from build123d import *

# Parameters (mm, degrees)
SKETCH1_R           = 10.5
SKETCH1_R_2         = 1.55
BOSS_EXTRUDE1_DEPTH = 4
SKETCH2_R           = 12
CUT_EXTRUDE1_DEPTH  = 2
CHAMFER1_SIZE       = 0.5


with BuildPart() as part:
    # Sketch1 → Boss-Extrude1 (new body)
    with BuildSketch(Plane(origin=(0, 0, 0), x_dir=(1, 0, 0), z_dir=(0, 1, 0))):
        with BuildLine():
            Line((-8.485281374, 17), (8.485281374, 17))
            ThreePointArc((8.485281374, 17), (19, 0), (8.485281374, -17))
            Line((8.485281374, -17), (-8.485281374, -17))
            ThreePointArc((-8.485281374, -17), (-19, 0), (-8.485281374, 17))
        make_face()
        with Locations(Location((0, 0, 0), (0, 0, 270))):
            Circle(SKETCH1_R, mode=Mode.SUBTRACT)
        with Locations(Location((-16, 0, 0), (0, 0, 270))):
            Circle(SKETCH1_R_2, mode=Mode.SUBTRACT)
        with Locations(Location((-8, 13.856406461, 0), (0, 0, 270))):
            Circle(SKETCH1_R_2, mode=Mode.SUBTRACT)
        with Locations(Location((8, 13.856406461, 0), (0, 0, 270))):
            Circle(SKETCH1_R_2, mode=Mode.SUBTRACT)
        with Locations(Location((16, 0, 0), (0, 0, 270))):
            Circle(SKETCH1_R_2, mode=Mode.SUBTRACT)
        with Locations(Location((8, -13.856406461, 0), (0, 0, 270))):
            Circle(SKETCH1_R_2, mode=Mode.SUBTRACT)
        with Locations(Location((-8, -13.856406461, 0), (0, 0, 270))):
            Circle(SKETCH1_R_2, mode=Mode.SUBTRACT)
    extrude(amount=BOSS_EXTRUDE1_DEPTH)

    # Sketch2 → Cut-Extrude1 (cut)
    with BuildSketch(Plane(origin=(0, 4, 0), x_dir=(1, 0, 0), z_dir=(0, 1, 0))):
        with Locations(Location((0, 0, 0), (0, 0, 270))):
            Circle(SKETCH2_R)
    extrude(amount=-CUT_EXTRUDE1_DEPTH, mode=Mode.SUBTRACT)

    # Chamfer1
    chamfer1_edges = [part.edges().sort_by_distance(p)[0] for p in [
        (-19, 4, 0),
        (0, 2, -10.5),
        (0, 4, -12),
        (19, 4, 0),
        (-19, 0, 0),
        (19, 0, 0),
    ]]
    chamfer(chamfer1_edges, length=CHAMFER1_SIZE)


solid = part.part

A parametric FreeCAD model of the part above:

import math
import FreeCAD as App
import Part
import Sketcher
from FreeCAD import Vector
Q = App.Units.Quantity


def edges_at(feature, points):
    """Names of the edges that pass closest to the given points."""
    edges = feature.Shape.Edges
    near = lambda p: min(range(len(edges)), key=lambda i: edges[i].distToShape(Part.Vertex(*p))[0])
    return sorted({f"Edge{near(p) + 1}" for p in points})

doc = App.newDocument("Part")
body = doc.addObject("PartDesign::Body", "Body")

sketch1 = doc.addObject("Sketcher::SketchObject", "Sketch")
body.addObject(sketch1)
sketch1.AttachmentSupport = (doc.XZ_Plane, [""])
sketch1.MapMode = "FlatFace"
sketch1.addGeometry([
    Part.LineSegment(Vector(8.5, -17, 0), Vector(-8.5, -17, 0)),
    Part.ArcOfCircle(Part.Circle(Vector(0, 0, 0), Vector(0, 0, 1), 19), math.radians(117), math.radians(243)),
    Part.LineSegment(Vector(-8.5, 17, 0), Vector(8.5, 17, 0)),
    Part.ArcOfCircle(Part.Circle(Vector(0, 0, 0), Vector(0, 0, 1), 19), math.radians(-63), math.radians(63)),
    Part.Circle(Vector(8, 13.9, 0), Vector(0, 0, 1), 1.6),
    Part.Circle(Vector(-8, 13.9, 0), Vector(0, 0, 1), 1.6),
    Part.Circle(Vector(16, 0, 0), Vector(0, 0, 1), 1.6),
    Part.Circle(Vector(8, -13.9, 0), Vector(0, 0, 1), 1.6),
    Part.Circle(Vector(0, 0, 0), Vector(0, 0, 1), 10.5),
    Part.Circle(Vector(-16, 0, 0), Vector(0, 0, 1), 1.6),
    Part.Circle(Vector(-8, -13.9, 0), Vector(0, 0, 1), 1.6),
], False)
sketch1.addConstraint([
    Sketcher.Constraint("Coincident", 0, 2, 1, 2),
    Sketcher.Constraint("Coincident", 1, 1, 2, 1),
    Sketcher.Constraint("Coincident", 2, 2, 3, 2),
    Sketcher.Constraint("Coincident", 3, 1, 0, 1),
    Sketcher.Constraint("Horizontal", 0),
    Sketcher.Constraint("Horizontal", 2),
    Sketcher.Constraint("Coincident", 1, 3, -1, 1),
    Sketcher.Constraint("Coincident", 3, 3, -1, 1),
    Sketcher.Constraint("Coincident", 8, 3, -1, 1),
    Sketcher.Constraint("Equal", 1, 3),
    Sketcher.Constraint("Equal", 4, 5),
    Sketcher.Constraint("Equal", 5, 6),
    Sketcher.Constraint("Equal", 6, 7),
    Sketcher.Constraint("Equal", 7, 9),
    Sketcher.Constraint("Equal", 9, 10),
    Sketcher.Constraint("Symmetric", 5, 3, 7, 3, -1, 1),
    Sketcher.Constraint("Symmetric", 6, 3, 9, 3, -1, 1),
    Sketcher.Constraint("Symmetric", 4, 3, 10, 3, -1, 1),
    Sketcher.Constraint("Symmetric", 4, 3, 5, 3, -2),
    Sketcher.Constraint("PointOnObject", 6, 3, -1),
    Sketcher.Constraint("Vertical", 0, 2, 1, 1),
    Sketcher.Constraint("Diameter", 8, Q("21 mm")),
    Sketcher.Constraint("Radius", 1, Q("19 mm")),
    Sketcher.Constraint("Diameter", 4, Q("3.1 mm")),
    Sketcher.Constraint("DistanceX", -1, 1, 4, 3, Q("8 mm")),
    Sketcher.Constraint("DistanceX", -1, 1, 6, 3, Q("16 mm")),
    Sketcher.Constraint("DistanceY", 0, 2, -1, 1, Q("17 mm")),
    Sketcher.Constraint("DistanceY", -1, 1, 4, 3, Q("13.856406 mm")),
])
pad1 = doc.addObject("PartDesign::Pad", "Pad")
body.addObject(pad1)
pad1.Profile = sketch1
pad1.Length = 4
pad1.Reversed = True

sketch2 = doc.addObject("Sketcher::SketchObject", "Sketch001")
body.addObject(sketch2)
sketch2.AttachmentSupport = (doc.XZ_Plane, [""])
sketch2.MapMode = "FlatFace"
sketch2.AttachmentOffset = App.Placement(Vector(0, 0, -4), App.Rotation())
sketch2.addGeometry(Part.Circle(Vector(0, 0, 0), Vector(0, 0, 1), 12), False)
sketch2.addConstraint([
    Sketcher.Constraint("Coincident", 0, 3, -1, 1),
    Sketcher.Constraint("Diameter", 0, Q("24 mm")),
])
pocket1 = doc.addObject("PartDesign::Pocket", "Pocket")
body.addObject(pocket1)
pocket1.Profile = sketch2
pocket1.Length = 2
pocket1.Reversed = True
doc.recompute()

chamfer = doc.addObject("PartDesign::Chamfer", "Chamfer")
body.addObject(chamfer)
chamfer.Base = (pocket1, edges_at(pocket1, [
    (-19, 4, 0),
    (0, 2, -10.5),
    (0, 4, -12),
    (19, 4, 0),
    (-19, 0, 0),
    (19, 0, 0),
]))
chamfer.Size = 0.5

doc.recompute()
